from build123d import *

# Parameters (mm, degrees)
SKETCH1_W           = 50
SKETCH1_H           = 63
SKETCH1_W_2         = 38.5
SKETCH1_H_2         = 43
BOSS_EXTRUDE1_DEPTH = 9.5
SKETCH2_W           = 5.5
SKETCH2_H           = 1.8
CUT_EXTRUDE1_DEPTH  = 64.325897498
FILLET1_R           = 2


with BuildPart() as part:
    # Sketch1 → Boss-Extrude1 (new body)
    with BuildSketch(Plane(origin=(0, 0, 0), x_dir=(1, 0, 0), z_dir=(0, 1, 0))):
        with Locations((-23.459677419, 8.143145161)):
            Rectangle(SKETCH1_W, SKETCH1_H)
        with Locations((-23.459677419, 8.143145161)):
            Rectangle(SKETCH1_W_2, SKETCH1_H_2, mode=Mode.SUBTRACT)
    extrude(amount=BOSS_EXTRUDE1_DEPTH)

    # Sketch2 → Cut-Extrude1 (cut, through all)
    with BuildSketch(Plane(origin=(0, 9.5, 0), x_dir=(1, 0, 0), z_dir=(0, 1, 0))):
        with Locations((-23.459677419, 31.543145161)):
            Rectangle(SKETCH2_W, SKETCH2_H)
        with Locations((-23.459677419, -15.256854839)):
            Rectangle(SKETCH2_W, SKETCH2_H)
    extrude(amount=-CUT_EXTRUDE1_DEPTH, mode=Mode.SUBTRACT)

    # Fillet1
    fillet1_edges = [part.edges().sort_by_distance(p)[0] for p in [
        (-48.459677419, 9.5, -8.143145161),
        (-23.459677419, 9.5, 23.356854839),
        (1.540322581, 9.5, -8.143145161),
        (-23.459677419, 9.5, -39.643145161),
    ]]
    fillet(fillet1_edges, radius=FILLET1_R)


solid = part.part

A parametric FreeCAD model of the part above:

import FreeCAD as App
import Part
import Sketcher


def edges_at(feature, points):
    """Names of the edges that pass closest to the given points."""
    edges = feature.Shape.Edges
    near = lambda p: min(range(len(edges)), key=lambda i: edges[i].distToShape(Part.Vertex(*p))[0])
    return sorted({f"Edge{near(p) + 1}" for p in points})

doc = App.newDocument("Part")
body = doc.addObject("PartDesign::Body", "Body")

# Sketch on XZ plane
sketch1 = body.newObject("Sketcher::SketchObject", "Sketch")
sketch1.AttachmentSupport = (doc.getObject("XZ_Plane"), [""])
sketch1.MapMode = "FlatFace"
sketch1.addGeometry([
    Part.LineSegment(App.Vector(-48, -40, 0), App.Vector(-48, 23, 0)),  # 0
    Part.LineSegment(App.Vector(-48, 23, 0), App.Vector(2, 23, 0)),  # 1
    Part.LineSegment(App.Vector(2, 23, 0), App.Vector(2, -40, 0)),  # 2
    Part.LineSegment(App.Vector(2, -40, 0), App.Vector(-48, -40, 0)),  # 3
    Part.LineSegment(App.Vector(-4, 13, 0), App.Vector(-43, 13, 0)),  # 4
    Part.LineSegment(App.Vector(-43, 13, 0), App.Vector(-43, -30, 0)),  # 5
    Part.LineSegment(App.Vector(-43, -30, 0), App.Vector(-4, -30, 0)),  # 6
    Part.LineSegment(App.Vector(-4, -30, 0), App.Vector(-4, 13, 0)),  # 7
], False)
sketch1.addConstraint([
    Sketcher.Constraint("Coincident", 0, 2, 1, 1),
    Sketcher.Constraint("Coincident", 1, 2, 2, 1),
    Sketcher.Constraint("Coincident", 2, 2, 3, 1),
    Sketcher.Constraint("Coincident", 3, 2, 0, 1),
    Sketcher.Constraint("Coincident", 4, 2, 5, 1),
    Sketcher.Constraint("Coincident", 5, 2, 6, 1),
    Sketcher.Constraint("Coincident", 6, 2, 7, 1),
    Sketcher.Constraint("Coincident", 7, 2, 4, 1),
    Sketcher.Constraint("Vertical", 0),
    Sketcher.Constraint("Horizontal", 1),
    Sketcher.Constraint("Vertical", 2),
    Sketcher.Constraint("Horizontal", 3),
    Sketcher.Constraint("Horizontal", 4),
    Sketcher.Constraint("Vertical", 5),
    Sketcher.Constraint("Horizontal", 6),
    Sketcher.Constraint("Vertical", 7),
    Sketcher.Constraint("DistanceX", 1, 1, 1, 2, 50.0),
    Sketcher.Constraint("DistanceY", 0, 1, 0, 2, 63.0),
    Sketcher.Constraint("DistanceY", 5, 2, 5, 1, 43.0),
    Sketcher.Constraint("DistanceX", 4, 2, 4, 1, 38.5),
    Sketcher.Constraint("DistanceY", 4, 2, 0, 2, 10.0),
    Sketcher.Constraint("DistanceX", 0, 2, 4, 2, 5.75),
    Sketcher.Constraint("DistanceX", 0, 2, -1, 1, 48.459677),
    Sketcher.Constraint("DistanceY", -1, 1, 0, 2, 23.356855),
])
pad1 = body.newObject("PartDesign::Pad", "Pad")
pad1.Profile = sketch1
pad1.Length = 9.5
pad1.Reversed = True

# Sketch on XZ plane
sketch2 = body.newObject("Sketcher::SketchObject", "Sketch001")
sketch2.AttachmentSupport = (doc.getObject("XZ_Plane"), [""])
sketch2.MapMode = "FlatFace"
sketch2.AttachmentOffset = App.Placement(App.Vector(0, 0, -9.5), App.Rotation())
sketch2.addGeometry([
    Part.LineSegment(App.Vector(-26.2, -32.4, 0), App.Vector(-26.2, -30.6, 0)),  # 0
    Part.LineSegment(App.Vector(-26.2, -30.6, 0), App.Vector(-20.7, -30.6, 0)),  # 1
    Part.LineSegment(App.Vector(-20.7, -30.6, 0), App.Vector(-20.7, -32.4, 0)),  # 2
    Part.LineSegment(App.Vector(-20.7, -32.4, 0), App.Vector(-26.2, -32.4, 0)),  # 3
    Part.LineSegment(App.Vector(-26.2, 14.4, 0), App.Vector(-26.2, 16.2, 0)),  # 4
    Part.LineSegment(App.Vector(-26.2, 16.2, 0), App.Vector(-20.7, 16.2, 0)),  # 5
    Part.LineSegment(App.Vector(-20.7, 16.2, 0), App.Vector(-20.7, 14.4, 0)),  # 6
    Part.LineSegment(App.Vector(-20.7, 14.4, 0), App.Vector(-26.2, 14.4, 0)),  # 7
], False)
sketch2.addConstraint([
    Sketcher.Constraint("Coincident", 0, 2, 1, 1),
    Sketcher.Constraint("Coincident", 1, 2, 2, 1),
    Sketcher.Constraint("Coincident", 2, 2, 3, 1),
    Sketcher.Constraint("Coincident", 3, 2, 0, 1),
    Sketcher.Constraint("Coincident", 4, 2, 5, 1),
    Sketcher.Constraint("Coincident", 5, 2, 6, 1),
    Sketcher.Constraint("Coincident", 6, 2, 7, 1),
    Sketcher.Constraint("Coincident", 7, 2, 4, 1),
    Sketcher.Constraint("Vertical", 0),
    Sketcher.Constraint("Horizontal", 1),
    Sketcher.Constraint("Vertical", 2),
    Sketcher.Constraint("Horizontal", 3),
    Sketcher.Constraint("Vertical", 4),
    Sketcher.Constraint("Horizontal", 5),
    Sketcher.Constraint("Vertical", 6),
    Sketcher.Constraint("Horizontal", 7),
    Sketcher.Constraint("Vertical", 3, 2, 4, 2),
    Sketcher.Constraint("Vertical", 2, 2, 5, 2),
    Sketcher.Constraint("Equal", 2, 4),
    Sketcher.Constraint("DistanceX", 1, 1, 1, 2, 5.5),
    Sketcher.Constraint("DistanceY", 0, 1, 0, 2, 1.8),
    Sketcher.Constraint("DistanceY", 1, 2, 6, 2, 45.0),
    Sketcher.Constraint("DistanceX", 0, 2, -1, 1, 26.209677),
    Sketcher.Constraint("DistanceY", 0, 2, -1, 1, 30.643145),
])
pocket1 = body.newObject("PartDesign::Pocket", "Pocket")
pocket1.Profile = sketch2
pocket1.Type = "ThroughAll"
pocket1.Reversed = True
doc.recompute()

fillet = body.newObject("PartDesign::Fillet", "Fillet")
fillet.Base = (pocket1, edges_at(pocket1, [
    (-48.46, 9.5, -8.143),
    (-23.46, 9.5, 23.357),
    (1.54, 9.5, -8.143),
    (-23.46, 9.5, -39.643),
]))
fillet.Radius = 2

doc.recompute()
